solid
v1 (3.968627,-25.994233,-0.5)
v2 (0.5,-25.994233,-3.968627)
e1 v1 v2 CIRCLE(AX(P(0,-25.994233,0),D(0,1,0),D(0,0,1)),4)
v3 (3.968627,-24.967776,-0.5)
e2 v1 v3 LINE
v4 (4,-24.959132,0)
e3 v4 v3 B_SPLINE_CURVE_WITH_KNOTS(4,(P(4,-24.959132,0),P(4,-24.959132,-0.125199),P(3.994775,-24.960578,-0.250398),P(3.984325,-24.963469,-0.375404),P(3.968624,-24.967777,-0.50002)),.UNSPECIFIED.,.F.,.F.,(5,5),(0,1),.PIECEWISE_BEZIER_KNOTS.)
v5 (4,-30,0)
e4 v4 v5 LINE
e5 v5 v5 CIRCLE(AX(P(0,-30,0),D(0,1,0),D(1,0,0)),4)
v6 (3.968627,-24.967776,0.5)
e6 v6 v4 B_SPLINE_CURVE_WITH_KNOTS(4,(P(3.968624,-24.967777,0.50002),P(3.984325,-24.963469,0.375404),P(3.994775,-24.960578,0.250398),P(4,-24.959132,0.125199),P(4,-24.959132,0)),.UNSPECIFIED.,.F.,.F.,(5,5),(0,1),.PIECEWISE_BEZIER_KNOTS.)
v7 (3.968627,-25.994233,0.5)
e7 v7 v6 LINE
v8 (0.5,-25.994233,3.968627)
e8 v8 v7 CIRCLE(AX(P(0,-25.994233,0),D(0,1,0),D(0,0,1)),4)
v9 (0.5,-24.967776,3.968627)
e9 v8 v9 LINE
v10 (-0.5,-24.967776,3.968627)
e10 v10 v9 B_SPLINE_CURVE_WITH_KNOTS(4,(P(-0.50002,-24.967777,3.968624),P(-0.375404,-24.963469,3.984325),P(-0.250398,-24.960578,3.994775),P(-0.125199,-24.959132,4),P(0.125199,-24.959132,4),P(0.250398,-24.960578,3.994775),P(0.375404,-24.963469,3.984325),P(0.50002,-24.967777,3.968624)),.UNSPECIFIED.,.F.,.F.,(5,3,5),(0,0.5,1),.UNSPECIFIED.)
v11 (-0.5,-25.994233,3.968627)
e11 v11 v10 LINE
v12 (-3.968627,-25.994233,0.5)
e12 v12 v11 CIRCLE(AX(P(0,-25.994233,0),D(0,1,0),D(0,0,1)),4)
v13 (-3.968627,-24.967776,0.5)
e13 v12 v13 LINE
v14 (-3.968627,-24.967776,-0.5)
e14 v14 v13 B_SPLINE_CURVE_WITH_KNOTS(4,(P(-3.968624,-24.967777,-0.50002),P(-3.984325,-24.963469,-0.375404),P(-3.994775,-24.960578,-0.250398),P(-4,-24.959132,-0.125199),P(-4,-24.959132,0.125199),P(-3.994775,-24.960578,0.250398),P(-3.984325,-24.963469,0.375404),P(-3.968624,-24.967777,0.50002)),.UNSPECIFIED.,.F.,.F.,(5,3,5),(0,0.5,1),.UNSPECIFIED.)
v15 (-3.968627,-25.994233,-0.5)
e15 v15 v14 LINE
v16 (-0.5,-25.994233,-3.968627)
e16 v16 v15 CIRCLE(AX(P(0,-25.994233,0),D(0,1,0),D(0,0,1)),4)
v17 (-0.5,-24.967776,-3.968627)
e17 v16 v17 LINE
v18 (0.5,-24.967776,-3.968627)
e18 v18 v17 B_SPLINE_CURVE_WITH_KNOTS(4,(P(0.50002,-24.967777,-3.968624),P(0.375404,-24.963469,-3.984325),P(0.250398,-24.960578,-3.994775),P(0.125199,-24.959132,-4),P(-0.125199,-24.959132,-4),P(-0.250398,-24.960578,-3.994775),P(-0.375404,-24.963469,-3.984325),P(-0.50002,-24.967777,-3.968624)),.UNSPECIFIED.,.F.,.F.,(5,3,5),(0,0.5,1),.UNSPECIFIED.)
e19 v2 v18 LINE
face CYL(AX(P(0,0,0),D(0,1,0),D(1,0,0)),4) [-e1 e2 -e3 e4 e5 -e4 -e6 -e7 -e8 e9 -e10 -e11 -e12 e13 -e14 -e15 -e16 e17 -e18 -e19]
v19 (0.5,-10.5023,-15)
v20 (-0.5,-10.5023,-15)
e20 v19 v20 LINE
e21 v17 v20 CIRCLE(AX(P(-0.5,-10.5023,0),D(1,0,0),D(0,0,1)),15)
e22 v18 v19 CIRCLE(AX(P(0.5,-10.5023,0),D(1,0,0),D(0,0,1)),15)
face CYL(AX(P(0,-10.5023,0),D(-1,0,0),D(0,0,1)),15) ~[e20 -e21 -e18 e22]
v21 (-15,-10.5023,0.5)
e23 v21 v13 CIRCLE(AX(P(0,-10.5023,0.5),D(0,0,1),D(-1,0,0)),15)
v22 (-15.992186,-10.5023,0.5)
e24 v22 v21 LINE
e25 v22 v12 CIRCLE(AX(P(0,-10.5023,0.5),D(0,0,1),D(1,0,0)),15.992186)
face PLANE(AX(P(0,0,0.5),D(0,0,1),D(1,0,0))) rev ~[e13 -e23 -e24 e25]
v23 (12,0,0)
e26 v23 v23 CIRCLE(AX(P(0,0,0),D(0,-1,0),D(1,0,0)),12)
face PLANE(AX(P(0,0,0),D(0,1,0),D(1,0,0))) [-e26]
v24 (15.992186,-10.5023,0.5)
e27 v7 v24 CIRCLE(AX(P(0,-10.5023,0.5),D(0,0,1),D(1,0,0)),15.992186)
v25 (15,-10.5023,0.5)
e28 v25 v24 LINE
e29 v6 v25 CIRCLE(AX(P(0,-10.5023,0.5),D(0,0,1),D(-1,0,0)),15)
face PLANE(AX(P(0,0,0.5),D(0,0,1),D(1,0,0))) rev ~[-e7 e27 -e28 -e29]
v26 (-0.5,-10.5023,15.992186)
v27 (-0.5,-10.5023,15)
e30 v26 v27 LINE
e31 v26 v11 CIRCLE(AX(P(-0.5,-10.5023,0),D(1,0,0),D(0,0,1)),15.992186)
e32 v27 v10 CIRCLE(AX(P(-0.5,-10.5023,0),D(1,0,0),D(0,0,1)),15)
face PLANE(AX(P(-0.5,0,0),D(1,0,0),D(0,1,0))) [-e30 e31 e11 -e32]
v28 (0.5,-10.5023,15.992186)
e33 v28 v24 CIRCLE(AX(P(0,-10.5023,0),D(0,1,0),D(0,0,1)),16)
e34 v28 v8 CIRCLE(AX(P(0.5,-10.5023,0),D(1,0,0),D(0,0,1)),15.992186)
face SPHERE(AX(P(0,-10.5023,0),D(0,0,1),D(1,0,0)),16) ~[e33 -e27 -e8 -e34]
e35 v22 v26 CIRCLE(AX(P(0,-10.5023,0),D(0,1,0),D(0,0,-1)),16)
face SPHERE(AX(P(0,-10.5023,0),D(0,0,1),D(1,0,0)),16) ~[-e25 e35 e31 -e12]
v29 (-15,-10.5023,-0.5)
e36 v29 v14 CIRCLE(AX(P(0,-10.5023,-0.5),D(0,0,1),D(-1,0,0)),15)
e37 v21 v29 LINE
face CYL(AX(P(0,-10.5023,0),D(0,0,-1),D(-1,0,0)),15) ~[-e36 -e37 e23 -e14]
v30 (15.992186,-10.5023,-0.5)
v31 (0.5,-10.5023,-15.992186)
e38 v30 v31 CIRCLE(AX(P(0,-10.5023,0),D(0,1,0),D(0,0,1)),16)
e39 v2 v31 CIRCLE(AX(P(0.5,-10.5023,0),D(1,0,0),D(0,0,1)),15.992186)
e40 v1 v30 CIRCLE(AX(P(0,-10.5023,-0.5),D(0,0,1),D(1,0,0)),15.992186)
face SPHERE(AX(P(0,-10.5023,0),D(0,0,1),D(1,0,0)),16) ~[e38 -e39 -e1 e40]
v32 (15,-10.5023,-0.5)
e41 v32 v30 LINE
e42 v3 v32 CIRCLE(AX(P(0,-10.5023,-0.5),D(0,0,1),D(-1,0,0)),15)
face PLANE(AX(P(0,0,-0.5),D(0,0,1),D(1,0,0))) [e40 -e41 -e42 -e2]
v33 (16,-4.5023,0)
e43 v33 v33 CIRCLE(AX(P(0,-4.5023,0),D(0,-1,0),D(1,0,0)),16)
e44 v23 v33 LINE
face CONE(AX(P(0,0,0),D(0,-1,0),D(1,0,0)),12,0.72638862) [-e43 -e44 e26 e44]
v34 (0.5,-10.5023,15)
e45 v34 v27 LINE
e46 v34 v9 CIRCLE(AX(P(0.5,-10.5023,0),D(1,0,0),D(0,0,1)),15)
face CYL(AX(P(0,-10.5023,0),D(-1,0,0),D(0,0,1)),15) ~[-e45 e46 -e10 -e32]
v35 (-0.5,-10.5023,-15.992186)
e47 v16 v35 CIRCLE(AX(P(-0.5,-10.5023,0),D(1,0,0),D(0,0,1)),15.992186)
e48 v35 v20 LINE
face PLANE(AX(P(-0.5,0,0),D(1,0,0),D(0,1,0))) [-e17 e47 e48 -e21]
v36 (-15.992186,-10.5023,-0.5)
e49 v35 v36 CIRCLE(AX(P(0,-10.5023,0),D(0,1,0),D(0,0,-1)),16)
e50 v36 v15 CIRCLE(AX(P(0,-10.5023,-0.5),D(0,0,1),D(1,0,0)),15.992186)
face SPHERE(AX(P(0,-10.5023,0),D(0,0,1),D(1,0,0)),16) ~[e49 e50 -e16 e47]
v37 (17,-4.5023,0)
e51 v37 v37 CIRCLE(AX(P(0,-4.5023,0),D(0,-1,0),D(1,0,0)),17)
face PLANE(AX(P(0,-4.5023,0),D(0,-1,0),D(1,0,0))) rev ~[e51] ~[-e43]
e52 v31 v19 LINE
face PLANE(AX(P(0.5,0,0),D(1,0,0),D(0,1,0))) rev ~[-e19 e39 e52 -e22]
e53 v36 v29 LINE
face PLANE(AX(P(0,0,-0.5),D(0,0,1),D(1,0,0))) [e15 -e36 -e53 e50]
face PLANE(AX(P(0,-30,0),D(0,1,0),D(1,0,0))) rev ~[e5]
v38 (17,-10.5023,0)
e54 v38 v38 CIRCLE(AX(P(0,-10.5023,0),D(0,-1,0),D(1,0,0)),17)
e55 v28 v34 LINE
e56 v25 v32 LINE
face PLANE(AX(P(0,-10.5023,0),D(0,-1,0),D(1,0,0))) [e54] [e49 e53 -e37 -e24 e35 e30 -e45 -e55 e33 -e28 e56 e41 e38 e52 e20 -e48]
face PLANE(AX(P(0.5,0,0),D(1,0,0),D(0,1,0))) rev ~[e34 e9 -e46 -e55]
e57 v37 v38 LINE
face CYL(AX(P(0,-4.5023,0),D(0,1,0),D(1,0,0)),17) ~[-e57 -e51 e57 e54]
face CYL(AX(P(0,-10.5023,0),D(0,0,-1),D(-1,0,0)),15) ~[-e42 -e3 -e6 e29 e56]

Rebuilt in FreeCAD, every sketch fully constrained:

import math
import FreeCAD as App
import Part
import Sketcher
from FreeCAD import Vector
Q = App.Units.Quantity

doc = App.newDocument("Part")
params = doc.addObject("Spreadsheet::Sheet", "Params")
for row, (alias, value) in enumerate([
    ("sketch1_width", "12 mm"),
    ("sketch1_width2", "16 mm"),
    ("revolution_angle", "360 deg"),
    ("sketch2_diameter", "34 mm"),
    ("pad1_length", "6 mm"),
    ("sketch3_radius", "16 mm"),
    ("revolution2_angle", "180 deg"),
    ("sketch4_width", "1 mm"),
    ("sketch4_radius", "16 mm"),
    ("pocket1_length", "1 mm"),
    ("sketch5_height", "1 mm"),
    ("sketch5_radius", "16 mm"),
    ("pocket2_length", "1 mm"),
    ("sketch6_diameter", "8 mm"),
    ("pad2_length", "30 mm"),
], start=1):
    params.set(f"A{row}", alias)
    params.set(f"B{row}", "=" + value)
    params.setAlias(f"B{row}", alias)

body = doc.addObject("PartDesign::Body", "Body")

sketch1 = body.newObject("Sketcher::SketchObject", "Sketch")
sketch1.AttachmentSupport = (doc.getObject("XY_Plane"), [""])
sketch1.MapMode = "FlatFace"
sketch1.addGeometry([
    Part.LineSegment(Vector(12, 0, 0), Vector(0, 0, 0)),
    Part.LineSegment(Vector(0, 0, 0), Vector(0, -4.5023, 0)),
    Part.LineSegment(Vector(0, -4.5023, 0), Vector(16, -4.5023, 0)),
    Part.LineSegment(Vector(16, -4.5023, 0), Vector(12, 0, 0)),
], False)
sketch1.addConstraint([
    Sketcher.Constraint("Coincident", 0, 2, 1, 1),
    Sketcher.Constraint("Coincident", 1, 2, 2, 1),
    Sketcher.Constraint("Coincident", 2, 2, 3, 1),
    Sketcher.Constraint("Coincident", 3, 2, 0, 1),
    Sketcher.Constraint("Horizontal", 0),
    Sketcher.Constraint("Vertical", 1),
    Sketcher.Constraint("Horizontal", 2),
    Sketcher.Constraint("Coincident", 0, 2, -1, 1),
    Sketcher.Constraint("DistanceX", 0, 2, 0, 1, 12.0),
    Sketcher.Constraint("DistanceX", 2, 1, 2, 2, 16.0),
    Sketcher.Constraint("Angle", 3, Q("131.619 deg")),
])
sketch1.setExpression("Constraints[8]", "Params.sketch1_width")
sketch1.setExpression("Constraints[9]", "Params.sketch1_width2")
revolution = body.newObject("PartDesign::Revolution", "Revolution")
revolution.Profile = sketch1
revolution.ReferenceAxis = (sketch1, ["V_Axis"])
revolution.setExpression("Angle", "Params.revolution_angle")

sketch2 = body.newObject("Sketcher::SketchObject", "Sketch001")
sketch2.AttachmentSupport = (doc.getObject("XZ_Plane"), [""])
sketch2.MapMode = "FlatFace"
sketch2.AttachmentOffset = App.Placement(Vector(0, 0, 4.5023), App.Rotation())
sketch2.addGeometry(Part.Circle(Vector(0, 0, 0), Vector(0, 0, 1), 17), False)
sketch2.addConstraint([
    Sketcher.Constraint("Coincident", 0, 3, -1, 1),
    Sketcher.Constraint("Diameter", 0, 34.0),
])
sketch2.setExpression("Constraints[1]", "Params.sketch2_diameter")
pad1 = body.newObject("PartDesign::Pad", "Pad")
pad1.Profile = sketch2
pad1.setExpression("Length", "Params.pad1_length")

sketch3 = body.newObject("Sketcher::SketchObject", "Sketch002")
sketch3.AttachmentSupport = (doc.getObject("XZ_Plane"), [""])
sketch3.MapMode = "FlatFace"
sketch3.AttachmentOffset = App.Placement(Vector(0, 0, 10.5023), App.Rotation())
sketch3.addGeometry([
    Part.ArcOfCircle(Part.Circle(Vector(0, 0, 0), Vector(0, 0, 1), 16), math.radians(-90), math.radians(90)),
    Part.LineSegment(Vector(0, 16, 0), Vector(0, -16, 0)),
], False)
sketch3.addConstraint([
    Sketcher.Constraint("Coincident", 0, 1, 1, 2),
    Sketcher.Constraint("Coincident", 1, 1, 0, 2),
    Sketcher.Constraint("Vertical", 1),
    Sketcher.Constraint("Coincident", 0, 3, -1, 1),
    Sketcher.Constraint("PointOnObject", 0, 1, -2),
    Sketcher.Constraint("Radius", 0, 16.0),
])
sketch3.setExpression("Constraints[5]", "Params.sketch3_radius")
revolution2 = body.newObject("PartDesign::Revolution", "Revolution001")
revolution2.Profile = sketch3
revolution2.ReferenceAxis = (sketch3, ["V_Axis"])
revolution2.setExpression("Angle", "Params.revolution2_angle")
revolution2.Reversed = True

sketch4 = body.newObject("Sketcher::SketchObject", "Sketch003")
sketch4.AttachmentSupport = (doc.getObject("XY_Plane"), [""])
sketch4.MapMode = "FlatFace"
sketch4.addGeometry([
    Part.LineSegment(Vector(-15, -10.5023, 0), Vector(-16, -10.5023, 0)),
    Part.ArcOfCircle(Part.Circle(Vector(0, -10.5023, 0), Vector(0, 0, 1), 16), math.radians(180), math.radians(360)),
    Part.LineSegment(Vector(16, -10.5023, 0), Vector(15, -10.5023, 0)),
    Part.ArcOfCircle(Part.Circle(Vector(0, -10.5023, 0), Vector(0, 0, 1), 15), math.radians(180), math.radians(360)),
], False)
sketch4.addConstraint([
    Sketcher.Constraint("Coincident", 0, 2, 1, 1),
    Sketcher.Constraint("Coincident", 1, 2, 2, 1),
    Sketcher.Constraint("Coincident", 2, 2, 3, 2),
    Sketcher.Constraint("Coincident", 3, 1, 0, 1),
    Sketcher.Constraint("Horizontal", 0),
    Sketcher.Constraint("Horizontal", 2),
    Sketcher.Constraint("Coincident", 3, 3, 1, 3),
    Sketcher.Constraint("Symmetric", 0, 2, 1, 2, -2),
    Sketcher.Constraint("Horizontal", 3, 3, 0, 2),
    Sketcher.Constraint("DistanceX", 0, 2, 0, 1, 1.0),
    Sketcher.Constraint("Radius", 1, 16.0),
    Sketcher.Constraint("DistanceY", 1, 3, -1, 1, 10.5023),
])
sketch4.setExpression("Constraints[9]", "Params.sketch4_width")
sketch4.setExpression("Constraints[10]", "Params.sketch4_radius")
pocket1 = body.newObject("PartDesign::Pocket", "Pocket")
pocket1.Profile = sketch4
pocket1.setExpression("Length", "Params.pocket1_length")
pocket1.Midplane = True

sketch5 = body.newObject("Sketcher::SketchObject", "Sketch004")
sketch5.AttachmentSupport = (doc.getObject("YZ_Plane"), [""])
sketch5.MapMode = "FlatFace"
sketch5.addGeometry([
    Part.LineSegment(Vector(-10.5023, 15, 0), Vector(-10.5023, 16, 0)),
    Part.ArcOfCircle(Part.Circle(Vector(-10.5023, 0, 0), Vector(0, 0, 1), 16.000014), math.radians(90), math.radians(178.209217)),
    Part.ArcOfCircle(Part.Circle(Vector(-10.5023, 0, 0), Vector(0, 0, 1), 16), math.radians(178.209217), math.radians(181.790783)),
    Part.ArcOfCircle(Part.Circle(Vector(-10.5023, 0, 0), Vector(0, 0, 1), 16), math.radians(-178.209217), math.radians(-90)),
    Part.LineSegment(Vector(-10.5023, -16, 0), Vector(-10.5023, -15, 0)),
    Part.ArcOfCircle(Part.Circle(Vector(-10.5023, 0, 0), Vector(0, 0, 1), 15), math.radians(90), math.radians(270)),
], False)
sketch5.addConstraint([
    Sketcher.Constraint("Coincident", 0, 2, 1, 1),
    Sketcher.Constraint("Tangent", 1, 2, 2, 1),
    Sketcher.Constraint("Tangent", 2, 2, 3, 1),
    Sketcher.Constraint("Coincident", 3, 2, 4, 1),
    Sketcher.Constraint("Coincident", 4, 2, 5, 2),
    Sketcher.Constraint("Coincident", 5, 1, 0, 1),
    Sketcher.Constraint("Vertical", 0),
    Sketcher.Constraint("Vertical", 4),
    Sketcher.Constraint("Coincident", 3, 3, 1, 3),
    Sketcher.Constraint("Coincident", 5, 3, 1, 3),
    Sketcher.Constraint("Symmetric", 1, 2, 2, 2, -1),
    Sketcher.Constraint("Vertical", 5, 3, 0, 2),
    Sketcher.Constraint("Vertical", 0, 2, 3, 2),
    Sketcher.Constraint("DistanceY", 0, 1, 0, 2, 1.0),
    Sketcher.Constraint("Radius", 1, 16.0),
    Sketcher.Constraint("DistanceY", 2, 2, 1, 2, 1.0),
    Sketcher.Constraint("DistanceX", 1, 3, -1, 1, 10.5023),
])
sketch5.setExpression("Constraints[13]", "Params.sketch5_height")
sketch5.setExpression("Constraints[14]", "Params.sketch5_radius")
pocket2 = body.newObject("PartDesign::Pocket", "Pocket001")
pocket2.Profile = sketch5
pocket2.setExpression("Length", "Params.pocket2_length")
pocket2.Midplane = True

sketch6 = body.newObject("Sketcher::SketchObject", "Sketch005")
sketch6.AttachmentSupport = (doc.getObject("XZ_Plane"), [""])
sketch6.MapMode = "FlatFace"
sketch6.addGeometry(Part.Circle(Vector(0, 0, 0), Vector(0, 0, 1), 4), False)
sketch6.addConstraint([
    Sketcher.Constraint("Coincident", 0, 3, -1, 1),
    Sketcher.Constraint("Diameter", 0, 8.0),
])
sketch6.setExpression("Constraints[1]", "Params.sketch6_diameter")
pad2 = body.newObject("PartDesign::Pad", "Pad001")
pad2.Profile = sketch6
pad2.setExpression("Length", "Params.pad2_length")

doc.recompute()
